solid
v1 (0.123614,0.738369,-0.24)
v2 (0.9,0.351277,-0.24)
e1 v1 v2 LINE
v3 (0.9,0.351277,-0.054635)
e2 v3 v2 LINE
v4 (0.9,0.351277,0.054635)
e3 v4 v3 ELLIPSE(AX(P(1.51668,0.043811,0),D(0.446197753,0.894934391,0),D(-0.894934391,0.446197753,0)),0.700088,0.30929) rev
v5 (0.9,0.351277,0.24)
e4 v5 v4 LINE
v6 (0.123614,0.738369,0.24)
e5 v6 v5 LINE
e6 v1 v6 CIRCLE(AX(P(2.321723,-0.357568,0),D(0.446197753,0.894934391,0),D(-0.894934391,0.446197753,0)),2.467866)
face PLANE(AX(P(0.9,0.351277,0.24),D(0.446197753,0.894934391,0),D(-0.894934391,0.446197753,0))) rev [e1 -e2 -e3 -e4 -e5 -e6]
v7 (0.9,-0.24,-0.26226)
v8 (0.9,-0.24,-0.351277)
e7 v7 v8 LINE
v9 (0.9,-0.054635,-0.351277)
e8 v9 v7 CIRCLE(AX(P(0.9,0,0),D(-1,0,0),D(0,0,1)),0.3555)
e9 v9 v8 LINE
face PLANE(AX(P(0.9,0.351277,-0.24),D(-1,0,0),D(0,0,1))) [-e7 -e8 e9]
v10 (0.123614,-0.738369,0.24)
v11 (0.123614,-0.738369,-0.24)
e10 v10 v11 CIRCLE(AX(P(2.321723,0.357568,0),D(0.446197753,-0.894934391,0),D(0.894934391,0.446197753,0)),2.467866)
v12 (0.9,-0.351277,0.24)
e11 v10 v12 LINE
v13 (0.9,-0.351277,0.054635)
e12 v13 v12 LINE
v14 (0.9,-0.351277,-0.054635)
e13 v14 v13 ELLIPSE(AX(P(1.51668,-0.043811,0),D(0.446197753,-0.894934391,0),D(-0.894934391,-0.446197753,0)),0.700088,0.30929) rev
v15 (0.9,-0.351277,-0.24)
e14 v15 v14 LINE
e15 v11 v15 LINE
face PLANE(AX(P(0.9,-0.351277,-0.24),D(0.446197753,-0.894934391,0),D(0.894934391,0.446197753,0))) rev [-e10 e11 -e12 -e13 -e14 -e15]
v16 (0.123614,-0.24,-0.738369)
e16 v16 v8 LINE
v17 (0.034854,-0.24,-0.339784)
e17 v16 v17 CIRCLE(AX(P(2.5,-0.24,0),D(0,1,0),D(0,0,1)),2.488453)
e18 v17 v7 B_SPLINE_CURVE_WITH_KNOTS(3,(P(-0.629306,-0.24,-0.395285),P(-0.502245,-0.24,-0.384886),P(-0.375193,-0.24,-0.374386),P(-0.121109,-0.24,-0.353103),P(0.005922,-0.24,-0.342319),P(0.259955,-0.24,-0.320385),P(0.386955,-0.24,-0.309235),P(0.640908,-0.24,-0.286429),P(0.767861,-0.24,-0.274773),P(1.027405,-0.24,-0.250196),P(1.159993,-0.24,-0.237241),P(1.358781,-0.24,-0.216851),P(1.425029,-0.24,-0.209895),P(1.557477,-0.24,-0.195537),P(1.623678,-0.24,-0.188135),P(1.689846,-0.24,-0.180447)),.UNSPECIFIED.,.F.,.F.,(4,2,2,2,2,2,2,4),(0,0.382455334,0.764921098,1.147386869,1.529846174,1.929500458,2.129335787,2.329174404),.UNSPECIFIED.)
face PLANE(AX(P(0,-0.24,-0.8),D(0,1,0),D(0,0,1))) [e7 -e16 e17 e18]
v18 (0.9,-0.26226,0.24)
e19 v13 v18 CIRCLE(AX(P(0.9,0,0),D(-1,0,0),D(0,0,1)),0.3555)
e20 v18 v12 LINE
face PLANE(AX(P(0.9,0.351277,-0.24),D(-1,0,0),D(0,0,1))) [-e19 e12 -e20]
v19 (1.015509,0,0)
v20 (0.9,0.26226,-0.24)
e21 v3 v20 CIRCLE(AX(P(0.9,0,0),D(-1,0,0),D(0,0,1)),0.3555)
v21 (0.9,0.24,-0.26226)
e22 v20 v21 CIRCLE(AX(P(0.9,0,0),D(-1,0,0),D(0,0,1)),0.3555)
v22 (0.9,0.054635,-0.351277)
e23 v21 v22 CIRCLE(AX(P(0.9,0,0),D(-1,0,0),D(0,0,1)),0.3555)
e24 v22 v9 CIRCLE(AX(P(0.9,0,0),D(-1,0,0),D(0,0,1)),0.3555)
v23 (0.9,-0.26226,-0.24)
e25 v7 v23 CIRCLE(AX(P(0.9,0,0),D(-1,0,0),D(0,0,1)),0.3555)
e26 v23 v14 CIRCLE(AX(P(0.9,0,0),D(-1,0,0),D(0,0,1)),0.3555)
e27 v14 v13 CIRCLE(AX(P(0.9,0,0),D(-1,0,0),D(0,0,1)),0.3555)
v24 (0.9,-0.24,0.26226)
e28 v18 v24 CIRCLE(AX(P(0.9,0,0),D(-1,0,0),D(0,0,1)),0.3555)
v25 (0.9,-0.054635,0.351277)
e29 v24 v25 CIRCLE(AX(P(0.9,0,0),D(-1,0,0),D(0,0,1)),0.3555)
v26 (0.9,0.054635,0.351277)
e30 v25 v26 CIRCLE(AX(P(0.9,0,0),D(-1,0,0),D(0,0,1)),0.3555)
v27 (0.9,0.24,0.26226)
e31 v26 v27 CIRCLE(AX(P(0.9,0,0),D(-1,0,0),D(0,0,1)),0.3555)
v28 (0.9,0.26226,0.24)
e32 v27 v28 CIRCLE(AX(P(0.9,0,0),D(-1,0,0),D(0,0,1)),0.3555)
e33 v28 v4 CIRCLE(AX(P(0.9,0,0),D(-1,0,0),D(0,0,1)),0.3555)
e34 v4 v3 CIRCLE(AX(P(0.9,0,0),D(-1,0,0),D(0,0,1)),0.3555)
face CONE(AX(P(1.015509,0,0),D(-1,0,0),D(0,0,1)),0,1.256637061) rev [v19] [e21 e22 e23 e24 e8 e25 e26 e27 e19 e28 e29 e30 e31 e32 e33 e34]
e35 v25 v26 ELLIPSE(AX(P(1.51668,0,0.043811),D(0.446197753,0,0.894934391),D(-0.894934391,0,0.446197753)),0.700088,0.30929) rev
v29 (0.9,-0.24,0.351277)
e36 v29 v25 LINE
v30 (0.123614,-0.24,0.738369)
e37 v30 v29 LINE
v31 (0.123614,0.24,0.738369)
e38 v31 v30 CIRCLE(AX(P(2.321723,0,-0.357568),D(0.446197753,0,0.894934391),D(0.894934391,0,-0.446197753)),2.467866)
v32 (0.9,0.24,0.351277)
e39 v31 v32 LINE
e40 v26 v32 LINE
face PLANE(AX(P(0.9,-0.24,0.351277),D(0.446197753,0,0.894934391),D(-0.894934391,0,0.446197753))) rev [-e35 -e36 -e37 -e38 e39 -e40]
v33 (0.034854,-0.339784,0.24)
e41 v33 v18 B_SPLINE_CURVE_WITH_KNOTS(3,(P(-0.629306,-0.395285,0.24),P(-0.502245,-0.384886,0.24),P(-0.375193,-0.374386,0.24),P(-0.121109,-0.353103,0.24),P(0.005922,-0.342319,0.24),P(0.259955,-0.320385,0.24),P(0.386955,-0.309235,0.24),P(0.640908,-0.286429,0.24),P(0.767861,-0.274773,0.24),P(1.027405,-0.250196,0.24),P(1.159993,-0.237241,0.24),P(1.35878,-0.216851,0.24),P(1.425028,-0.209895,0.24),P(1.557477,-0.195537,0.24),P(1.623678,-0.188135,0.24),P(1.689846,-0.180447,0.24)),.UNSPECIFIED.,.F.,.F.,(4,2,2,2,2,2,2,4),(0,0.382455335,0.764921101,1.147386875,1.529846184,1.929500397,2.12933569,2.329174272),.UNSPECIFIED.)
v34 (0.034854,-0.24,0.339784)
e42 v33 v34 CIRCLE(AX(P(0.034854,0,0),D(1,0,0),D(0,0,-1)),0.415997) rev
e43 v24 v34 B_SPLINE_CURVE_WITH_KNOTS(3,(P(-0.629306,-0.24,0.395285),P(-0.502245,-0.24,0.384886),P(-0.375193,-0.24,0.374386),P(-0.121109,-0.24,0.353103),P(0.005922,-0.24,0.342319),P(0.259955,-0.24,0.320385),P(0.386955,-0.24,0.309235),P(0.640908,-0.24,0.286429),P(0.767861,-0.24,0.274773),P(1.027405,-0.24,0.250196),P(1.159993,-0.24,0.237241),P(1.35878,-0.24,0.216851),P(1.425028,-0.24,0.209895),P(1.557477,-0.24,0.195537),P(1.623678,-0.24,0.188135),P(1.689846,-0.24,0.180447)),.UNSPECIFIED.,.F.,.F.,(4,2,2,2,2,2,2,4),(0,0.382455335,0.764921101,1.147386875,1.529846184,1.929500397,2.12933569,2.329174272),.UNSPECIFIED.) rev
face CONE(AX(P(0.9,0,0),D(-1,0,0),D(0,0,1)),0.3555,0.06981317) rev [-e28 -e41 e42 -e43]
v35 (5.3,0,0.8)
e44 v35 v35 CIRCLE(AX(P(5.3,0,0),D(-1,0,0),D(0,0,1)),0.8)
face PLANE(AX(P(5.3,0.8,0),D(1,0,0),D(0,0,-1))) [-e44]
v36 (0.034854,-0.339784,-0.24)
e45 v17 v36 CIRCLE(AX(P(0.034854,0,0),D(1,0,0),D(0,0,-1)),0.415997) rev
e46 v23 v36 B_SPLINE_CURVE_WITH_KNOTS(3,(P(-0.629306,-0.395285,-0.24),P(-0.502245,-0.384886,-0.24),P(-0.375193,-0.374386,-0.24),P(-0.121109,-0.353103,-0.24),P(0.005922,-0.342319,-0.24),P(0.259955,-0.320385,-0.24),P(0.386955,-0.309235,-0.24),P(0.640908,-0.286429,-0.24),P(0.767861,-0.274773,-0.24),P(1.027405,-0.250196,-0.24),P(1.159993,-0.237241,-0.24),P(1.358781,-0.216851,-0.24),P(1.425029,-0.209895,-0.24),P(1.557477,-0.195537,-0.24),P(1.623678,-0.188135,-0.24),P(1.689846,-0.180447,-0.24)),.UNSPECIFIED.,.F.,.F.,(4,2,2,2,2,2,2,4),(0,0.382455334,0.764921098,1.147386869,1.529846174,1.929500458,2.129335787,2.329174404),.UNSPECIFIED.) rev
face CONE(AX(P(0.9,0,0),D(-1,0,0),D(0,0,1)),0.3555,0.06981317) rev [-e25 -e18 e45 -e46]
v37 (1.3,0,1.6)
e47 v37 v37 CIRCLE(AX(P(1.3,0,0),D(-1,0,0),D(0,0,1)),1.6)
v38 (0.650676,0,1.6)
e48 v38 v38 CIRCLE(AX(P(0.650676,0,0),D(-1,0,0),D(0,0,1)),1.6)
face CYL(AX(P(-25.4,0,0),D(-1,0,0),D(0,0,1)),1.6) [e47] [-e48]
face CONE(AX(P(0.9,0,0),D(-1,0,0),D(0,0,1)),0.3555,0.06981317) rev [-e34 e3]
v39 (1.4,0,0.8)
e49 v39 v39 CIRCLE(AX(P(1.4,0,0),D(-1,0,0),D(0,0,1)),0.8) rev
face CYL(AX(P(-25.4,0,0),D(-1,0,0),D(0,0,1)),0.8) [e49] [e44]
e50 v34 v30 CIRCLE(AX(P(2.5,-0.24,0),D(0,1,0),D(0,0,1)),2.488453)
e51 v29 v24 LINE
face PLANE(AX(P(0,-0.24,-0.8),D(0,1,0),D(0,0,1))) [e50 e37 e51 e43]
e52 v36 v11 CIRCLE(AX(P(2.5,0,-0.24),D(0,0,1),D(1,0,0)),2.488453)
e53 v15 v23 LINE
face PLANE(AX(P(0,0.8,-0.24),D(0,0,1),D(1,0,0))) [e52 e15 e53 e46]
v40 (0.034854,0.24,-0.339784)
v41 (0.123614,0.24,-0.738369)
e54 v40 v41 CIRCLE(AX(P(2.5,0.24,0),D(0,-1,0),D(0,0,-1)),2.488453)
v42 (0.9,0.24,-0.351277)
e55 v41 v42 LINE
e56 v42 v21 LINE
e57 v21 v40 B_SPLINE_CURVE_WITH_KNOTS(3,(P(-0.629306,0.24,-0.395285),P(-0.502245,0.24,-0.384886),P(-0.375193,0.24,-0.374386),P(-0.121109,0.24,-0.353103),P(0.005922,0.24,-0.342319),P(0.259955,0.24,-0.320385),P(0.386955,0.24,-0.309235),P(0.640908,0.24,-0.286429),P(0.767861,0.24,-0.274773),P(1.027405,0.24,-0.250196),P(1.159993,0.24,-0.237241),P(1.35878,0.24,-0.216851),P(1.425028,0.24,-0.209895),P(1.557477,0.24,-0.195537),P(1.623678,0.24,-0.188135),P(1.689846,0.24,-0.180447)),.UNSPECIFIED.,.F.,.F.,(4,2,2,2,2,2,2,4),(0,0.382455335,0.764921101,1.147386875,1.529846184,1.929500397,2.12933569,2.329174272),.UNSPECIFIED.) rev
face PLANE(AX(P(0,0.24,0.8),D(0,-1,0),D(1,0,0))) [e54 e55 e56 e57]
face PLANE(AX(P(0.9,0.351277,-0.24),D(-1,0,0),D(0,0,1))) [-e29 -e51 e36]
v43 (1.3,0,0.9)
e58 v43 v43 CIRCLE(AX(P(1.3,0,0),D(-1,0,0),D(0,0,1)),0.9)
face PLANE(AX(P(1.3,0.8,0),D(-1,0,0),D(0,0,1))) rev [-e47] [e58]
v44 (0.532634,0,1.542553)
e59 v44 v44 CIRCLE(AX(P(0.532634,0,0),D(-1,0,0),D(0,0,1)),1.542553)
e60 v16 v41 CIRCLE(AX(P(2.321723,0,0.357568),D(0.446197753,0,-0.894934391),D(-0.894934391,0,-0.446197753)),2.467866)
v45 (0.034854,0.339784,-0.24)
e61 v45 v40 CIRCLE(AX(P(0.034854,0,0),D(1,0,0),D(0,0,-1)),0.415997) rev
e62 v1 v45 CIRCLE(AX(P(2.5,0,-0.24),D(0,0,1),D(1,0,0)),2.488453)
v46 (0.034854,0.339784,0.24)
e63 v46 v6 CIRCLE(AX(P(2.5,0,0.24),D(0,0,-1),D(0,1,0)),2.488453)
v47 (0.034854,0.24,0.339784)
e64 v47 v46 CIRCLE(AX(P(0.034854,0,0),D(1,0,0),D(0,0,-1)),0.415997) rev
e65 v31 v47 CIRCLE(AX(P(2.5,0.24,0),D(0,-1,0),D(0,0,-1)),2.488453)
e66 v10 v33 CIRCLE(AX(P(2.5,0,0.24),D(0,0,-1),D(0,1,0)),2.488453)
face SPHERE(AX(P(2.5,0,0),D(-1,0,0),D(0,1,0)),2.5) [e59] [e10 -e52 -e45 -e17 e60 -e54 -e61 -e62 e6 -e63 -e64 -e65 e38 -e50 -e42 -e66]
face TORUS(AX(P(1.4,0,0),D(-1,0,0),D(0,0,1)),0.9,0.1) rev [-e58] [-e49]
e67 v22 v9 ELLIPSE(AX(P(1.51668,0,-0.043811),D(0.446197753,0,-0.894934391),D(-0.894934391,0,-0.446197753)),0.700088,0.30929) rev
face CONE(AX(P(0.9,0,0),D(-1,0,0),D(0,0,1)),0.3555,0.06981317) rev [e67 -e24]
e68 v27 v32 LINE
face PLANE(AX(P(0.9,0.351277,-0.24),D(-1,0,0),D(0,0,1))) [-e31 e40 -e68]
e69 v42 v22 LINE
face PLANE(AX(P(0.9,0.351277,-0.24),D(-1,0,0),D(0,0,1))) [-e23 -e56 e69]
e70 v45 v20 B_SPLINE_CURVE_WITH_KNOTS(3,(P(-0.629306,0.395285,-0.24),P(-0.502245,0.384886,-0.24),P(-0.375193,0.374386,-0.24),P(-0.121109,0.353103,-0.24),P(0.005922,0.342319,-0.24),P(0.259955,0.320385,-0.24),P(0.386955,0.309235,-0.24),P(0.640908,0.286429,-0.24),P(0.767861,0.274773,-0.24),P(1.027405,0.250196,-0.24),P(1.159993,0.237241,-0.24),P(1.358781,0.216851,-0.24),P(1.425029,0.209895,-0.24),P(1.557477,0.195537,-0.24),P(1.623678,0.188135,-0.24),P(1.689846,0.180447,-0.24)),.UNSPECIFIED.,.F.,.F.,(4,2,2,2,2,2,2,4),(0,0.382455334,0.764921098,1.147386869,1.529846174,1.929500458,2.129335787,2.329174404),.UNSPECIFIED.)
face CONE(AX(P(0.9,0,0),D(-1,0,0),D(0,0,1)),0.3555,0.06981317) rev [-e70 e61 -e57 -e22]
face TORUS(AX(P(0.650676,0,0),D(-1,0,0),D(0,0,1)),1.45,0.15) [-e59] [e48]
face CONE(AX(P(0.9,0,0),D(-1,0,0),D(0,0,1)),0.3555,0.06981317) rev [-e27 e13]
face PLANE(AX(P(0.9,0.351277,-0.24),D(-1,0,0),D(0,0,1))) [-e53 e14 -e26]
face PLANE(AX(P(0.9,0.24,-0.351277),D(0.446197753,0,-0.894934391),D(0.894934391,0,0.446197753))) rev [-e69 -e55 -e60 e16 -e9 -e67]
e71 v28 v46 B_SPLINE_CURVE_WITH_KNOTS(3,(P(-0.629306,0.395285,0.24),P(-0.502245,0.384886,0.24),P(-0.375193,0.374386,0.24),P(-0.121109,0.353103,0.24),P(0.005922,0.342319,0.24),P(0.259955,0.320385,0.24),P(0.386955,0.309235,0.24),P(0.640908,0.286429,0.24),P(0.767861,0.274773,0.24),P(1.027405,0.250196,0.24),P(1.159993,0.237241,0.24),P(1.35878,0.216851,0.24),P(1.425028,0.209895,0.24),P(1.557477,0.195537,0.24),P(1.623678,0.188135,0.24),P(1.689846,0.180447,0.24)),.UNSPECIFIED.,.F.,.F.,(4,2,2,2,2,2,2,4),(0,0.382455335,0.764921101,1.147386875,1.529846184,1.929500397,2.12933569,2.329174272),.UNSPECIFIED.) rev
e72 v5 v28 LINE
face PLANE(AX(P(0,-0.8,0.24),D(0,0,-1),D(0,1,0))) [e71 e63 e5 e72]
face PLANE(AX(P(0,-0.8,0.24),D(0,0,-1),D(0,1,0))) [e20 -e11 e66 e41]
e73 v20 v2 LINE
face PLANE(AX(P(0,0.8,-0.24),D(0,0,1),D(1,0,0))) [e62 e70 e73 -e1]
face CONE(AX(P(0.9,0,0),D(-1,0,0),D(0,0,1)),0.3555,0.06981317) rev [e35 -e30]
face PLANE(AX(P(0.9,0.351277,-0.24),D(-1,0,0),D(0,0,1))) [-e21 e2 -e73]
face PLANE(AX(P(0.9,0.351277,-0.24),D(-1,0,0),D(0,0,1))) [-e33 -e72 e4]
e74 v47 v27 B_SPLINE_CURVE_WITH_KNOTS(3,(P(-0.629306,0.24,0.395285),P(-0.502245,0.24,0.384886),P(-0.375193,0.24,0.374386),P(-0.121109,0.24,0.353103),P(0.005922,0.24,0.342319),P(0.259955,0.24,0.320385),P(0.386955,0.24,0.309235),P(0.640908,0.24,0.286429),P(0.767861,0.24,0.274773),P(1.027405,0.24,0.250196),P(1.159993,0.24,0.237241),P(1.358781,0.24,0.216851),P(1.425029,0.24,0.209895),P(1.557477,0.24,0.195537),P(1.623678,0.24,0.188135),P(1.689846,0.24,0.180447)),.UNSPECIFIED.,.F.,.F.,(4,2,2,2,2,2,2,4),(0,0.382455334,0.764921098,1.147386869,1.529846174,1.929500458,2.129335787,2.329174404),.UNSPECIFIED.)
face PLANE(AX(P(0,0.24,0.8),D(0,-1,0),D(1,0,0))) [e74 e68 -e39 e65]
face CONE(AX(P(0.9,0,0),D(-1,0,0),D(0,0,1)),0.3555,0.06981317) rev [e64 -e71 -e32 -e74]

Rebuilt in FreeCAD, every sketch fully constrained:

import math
import FreeCAD as App
import Part
import Sketcher
from FreeCAD import Vector
Q = App.Units.Quantity


def edges_at(feature, points):
    """Names of the edges that pass closest to the given points."""
    edges = feature.Shape.Edges
    near = lambda p: min(range(len(edges)), key=lambda i: edges[i].distToShape(Part.Vertex(*p))[0])
    return sorted({f"Edge{near(p) + 1}" for p in points})


def add_polygon(sketch, points):
    """Adds a closed chain of lines whose ends are joined by coincident constraints."""
    first, n = sketch.GeometryCount, len(points)
    for a, b in zip(points, points[1:] + points[:1]):
        sketch.addGeometry(Part.LineSegment(App.Vector(*a, 0), App.Vector(*b, 0)), False)
    for i in range(n):
        sketch.addConstraint(Sketcher.Constraint("Coincident", first + i, 2, first + (i + 1) % n, 1))

doc = App.newDocument("Part")
params = doc.addObject("Spreadsheet::Sheet", "Params")
for row, (alias, value) in enumerate([
    ("sketch1_radius", "2.5 mm"),
    ("sketch1_width", "4 mm"),
    ("sketch1_radius2", "0.15 mm"),
    ("sketch1_width2", "5.3 mm"),
    ("sketch1_height", "0.8 mm"),
    ("revolution_angle", "360 deg"),
    ("fillet_radius", "0.1 mm"),
    ("sketch2_width", "1.6 mm"),
    ("sketch2_height", "0.48 mm"),
    ("sketch3_height", "0.48 mm"),
    ("groove_angle", "360 deg"),
], start=1):
    params.set(f"A{row}", alias)
    params.set(f"B{row}", "=" + value)
    params.setAlias(f"B{row}", alias)

body = doc.addObject("PartDesign::Body", "Body")

sketch1 = body.newObject("Sketcher::SketchObject", "Sketch")
sketch1.AttachmentSupport = (doc.getObject("XY_Plane"), [""])
sketch1.MapMode = "FlatFace"
sketch1.addGeometry(Part.LineSegment(Vector(1.3, 0.8, 0), Vector(1.3, 1.6, 0)), False)
sketch1.addGeometry(Part.LineSegment(Vector(1.3, 1.6, 0), Vector(0.65, 1.6, 0)), False)
sketch1.addGeometry(Part.ArcOfCircle(Part.Circle(Vector(0.65, 1.45, 0), Vector(0, 0, 1), 0.15), math.radians(90), math.radians(142)), False)
sketch1.addGeometry(Part.ArcOfCircle(Part.Circle(Vector(2.5, 0, 0), Vector(0, 0, 1), 2.5), math.radians(142), math.radians(180)), False)
sketch1.addGeometry(Part.LineSegment(Vector(0, 0, 0), Vector(5.3, 0, 0)), False)
sketch1.addGeometry(Part.LineSegment(Vector(5.3, 0, 0), Vector(5.3, 0.8, 0)), False)
sketch1.addGeometry(Part.LineSegment(Vector(5.3, 0.8, 0), Vector(1.3, 0.8, 0)), False)
sketch1.addConstraint(Sketcher.Constraint("Coincident", 0, 2, 1, 1))
sketch1.addConstraint(Sketcher.Constraint("Tangent", 1, 2, 2, 1))
sketch1.addConstraint(Sketcher.Constraint("Tangent", 2, 2, 3, 1))
sketch1.addConstraint(Sketcher.Constraint("Coincident", 3, 2, 4, 1))
sketch1.addConstraint(Sketcher.Constraint("Coincident", 4, 2, 5, 1))
sketch1.addConstraint(Sketcher.Constraint("Coincident", 5, 2, 6, 1))
sketch1.addConstraint(Sketcher.Constraint("Coincident", 6, 2, 0, 1))
sketch1.addConstraint(Sketcher.Constraint("Vertical", 0))
sketch1.addConstraint(Sketcher.Constraint("Horizontal", 1))
sketch1.addConstraint(Sketcher.Constraint("Horizontal", 4))
sketch1.addConstraint(Sketcher.Constraint("Vertical", 5))
sketch1.addConstraint(Sketcher.Constraint("Horizontal", 6))
sketch1.addConstraint(Sketcher.Constraint("Coincident", 3, 2, -1, 1))
sketch1.addConstraint(Sketcher.Constraint("PointOnObject", 3, 3, -1))
sketch1.addConstraint(Sketcher.Constraint("Equal", 0, 5))
sketch1.addConstraint(Sketcher.Constraint("Radius", 3, 2.5))
sketch1.addConstraint(Sketcher.Constraint("DistanceX", 6, 2, 6, 1, 4.0))
sketch1.addConstraint(Sketcher.Constraint("Radius", 2, 0.15))
sketch1.addConstraint(Sketcher.Constraint("DistanceX", 4, 1, 4, 2, 5.3))
sketch1.addConstraint(Sketcher.Constraint("DistanceY", 0, 1, 0, 2, 0.8))
sketch1.setExpression("Constraints[15]", "Params.sketch1_radius")
sketch1.setExpression("Constraints[16]", "Params.sketch1_width")
sketch1.setExpression("Constraints[17]", "Params.sketch1_radius2")
sketch1.setExpression("Constraints[18]", "Params.sketch1_width2")
sketch1.setExpression("Constraints[19]", "Params.sketch1_height")
revolution = body.newObject("PartDesign::Revolution", "Revolution")
revolution.Profile = sketch1
revolution.ReferenceAxis = (sketch1, ["H_Axis"])
revolution.setExpression("Angle", "Params.revolution_angle")
doc.recompute()

fillet = body.newObject("PartDesign::Fillet", "Fillet")
fillet.Base = (revolution, edges_at(revolution, [(1.3, -0.8, 0)]))
fillet.setExpression("Radius", "Params.fillet_radius")

sketch2 = body.newObject("Sketcher::SketchObject", "Sketch001")
sketch2.AttachmentSupport = (doc.getObject("YZ_Plane"), [""])
sketch2.MapMode = "FlatFace"
add_polygon(sketch2, [(0.8, 0.24), (-0.8, 0.24), (-0.8, -0.24), (0.8, -0.24)])
sketch2.addConstraint(Sketcher.Constraint("Horizontal", 0))
sketch2.addConstraint(Sketcher.Constraint("Vertical", 1))
sketch2.addConstraint(Sketcher.Constraint("Horizontal", 2))
sketch2.addConstraint(Sketcher.Constraint("Vertical", 3))
sketch2.addConstraint(Sketcher.Constraint("Symmetric", 0, 2, 2, 2, -1, 1))
sketch2.addConstraint(Sketcher.Constraint("DistanceX", 0, 2, 0, 1, 1.6))
sketch2.addConstraint(Sketcher.Constraint("DistanceY", 1, 2, 1, 1, 0.48))
sketch2.setExpression("Constraints[9]", "Params.sketch2_width")
sketch2.setExpression("Constraints[10]", "Params.sketch2_height")

sketch3 = body.newObject("Sketcher::SketchObject", "Sketch002")
sketch3.AttachmentSupport = (doc.getObject("YZ_Plane"), [""])
sketch3.MapMode = "FlatFace"
sketch3.AttachmentOffset = App.Placement(Vector(0, 0, 0.9), App.Rotation())
add_polygon(sketch3, [(0.35, 0.24), (-0.35, 0.24), (-0.35, -0.24), (0.35, -0.24)])
sketch3.addConstraint(Sketcher.Constraint("Horizontal", 0))
sketch3.addConstraint(Sketcher.Constraint("Vertical", 1))
sketch3.addConstraint(Sketcher.Constraint("Horizontal", 2))
sketch3.addConstraint(Sketcher.Constraint("Vertical", 3))
sketch3.addConstraint(Sketcher.Constraint("Symmetric", 0, 2, 2, 2, -1, 1))
sketch3.addConstraint(Sketcher.Constraint("DistanceY", 1, 2, 1, 1, 0.48))
sketch3.addConstraint(Sketcher.Constraint("DistanceX", 0, 2, 0, 1, 0.702553))
sketch3.setExpression("Constraints[9]", "Params.sketch3_height")

subtractiveloft = body.newObject("PartDesign::SubtractiveLoft", "SubtractiveLoft")
subtractiveloft.Profile = sketch2
subtractiveloft.Sections = [sketch3]
doc.recompute()

polarpattern = body.newObject("PartDesign::PolarPattern", "PolarPattern")
polarpattern.Originals = [subtractiveloft]
polarpattern.Axis = (doc.getObject("X_Axis"), [""])
polarpattern.Angle = 90
polarpattern.Occurrences = 2
body.Tip = polarpattern

sketch4 = body.newObject("Sketcher::SketchObject", "Sketch003")
sketch4.AttachmentSupport = (doc.getObject("XY_Plane"), [""])
sketch4.MapMode = "FlatFace"
add_polygon(sketch4, [(0, 0.42), (0, 0), (1.02, 0), (0.9, 0.36)])
sketch4.addConstraint(Sketcher.Constraint("Vertical", 0))
sketch4.addConstraint(Sketcher.Constraint("Horizontal", 1))
sketch4.addConstraint(Sketcher.Constraint("Coincident", 0, 2, -1, 1))
sketch4.addConstraint(Sketcher.Constraint("Angle", 2, Q("108 deg")))
sketch4.addConstraint(Sketcher.Constraint("Angle", 3, Q("176 deg")))
sketch4.addConstraint(Sketcher.Constraint("DistanceX", -1, 1, 2, 2, 0.9))
sketch4.addConstraint(Sketcher.Constraint("DistanceX", 1, 1, 1, 2, 1.015509))
groove = body.newObject("PartDesign::Groove", "Groove")
groove.Profile = sketch4
groove.ReferenceAxis = (sketch4, ["H_Axis"])
groove.setExpression("Angle", "Params.groove_angle")

doc.recompute()
